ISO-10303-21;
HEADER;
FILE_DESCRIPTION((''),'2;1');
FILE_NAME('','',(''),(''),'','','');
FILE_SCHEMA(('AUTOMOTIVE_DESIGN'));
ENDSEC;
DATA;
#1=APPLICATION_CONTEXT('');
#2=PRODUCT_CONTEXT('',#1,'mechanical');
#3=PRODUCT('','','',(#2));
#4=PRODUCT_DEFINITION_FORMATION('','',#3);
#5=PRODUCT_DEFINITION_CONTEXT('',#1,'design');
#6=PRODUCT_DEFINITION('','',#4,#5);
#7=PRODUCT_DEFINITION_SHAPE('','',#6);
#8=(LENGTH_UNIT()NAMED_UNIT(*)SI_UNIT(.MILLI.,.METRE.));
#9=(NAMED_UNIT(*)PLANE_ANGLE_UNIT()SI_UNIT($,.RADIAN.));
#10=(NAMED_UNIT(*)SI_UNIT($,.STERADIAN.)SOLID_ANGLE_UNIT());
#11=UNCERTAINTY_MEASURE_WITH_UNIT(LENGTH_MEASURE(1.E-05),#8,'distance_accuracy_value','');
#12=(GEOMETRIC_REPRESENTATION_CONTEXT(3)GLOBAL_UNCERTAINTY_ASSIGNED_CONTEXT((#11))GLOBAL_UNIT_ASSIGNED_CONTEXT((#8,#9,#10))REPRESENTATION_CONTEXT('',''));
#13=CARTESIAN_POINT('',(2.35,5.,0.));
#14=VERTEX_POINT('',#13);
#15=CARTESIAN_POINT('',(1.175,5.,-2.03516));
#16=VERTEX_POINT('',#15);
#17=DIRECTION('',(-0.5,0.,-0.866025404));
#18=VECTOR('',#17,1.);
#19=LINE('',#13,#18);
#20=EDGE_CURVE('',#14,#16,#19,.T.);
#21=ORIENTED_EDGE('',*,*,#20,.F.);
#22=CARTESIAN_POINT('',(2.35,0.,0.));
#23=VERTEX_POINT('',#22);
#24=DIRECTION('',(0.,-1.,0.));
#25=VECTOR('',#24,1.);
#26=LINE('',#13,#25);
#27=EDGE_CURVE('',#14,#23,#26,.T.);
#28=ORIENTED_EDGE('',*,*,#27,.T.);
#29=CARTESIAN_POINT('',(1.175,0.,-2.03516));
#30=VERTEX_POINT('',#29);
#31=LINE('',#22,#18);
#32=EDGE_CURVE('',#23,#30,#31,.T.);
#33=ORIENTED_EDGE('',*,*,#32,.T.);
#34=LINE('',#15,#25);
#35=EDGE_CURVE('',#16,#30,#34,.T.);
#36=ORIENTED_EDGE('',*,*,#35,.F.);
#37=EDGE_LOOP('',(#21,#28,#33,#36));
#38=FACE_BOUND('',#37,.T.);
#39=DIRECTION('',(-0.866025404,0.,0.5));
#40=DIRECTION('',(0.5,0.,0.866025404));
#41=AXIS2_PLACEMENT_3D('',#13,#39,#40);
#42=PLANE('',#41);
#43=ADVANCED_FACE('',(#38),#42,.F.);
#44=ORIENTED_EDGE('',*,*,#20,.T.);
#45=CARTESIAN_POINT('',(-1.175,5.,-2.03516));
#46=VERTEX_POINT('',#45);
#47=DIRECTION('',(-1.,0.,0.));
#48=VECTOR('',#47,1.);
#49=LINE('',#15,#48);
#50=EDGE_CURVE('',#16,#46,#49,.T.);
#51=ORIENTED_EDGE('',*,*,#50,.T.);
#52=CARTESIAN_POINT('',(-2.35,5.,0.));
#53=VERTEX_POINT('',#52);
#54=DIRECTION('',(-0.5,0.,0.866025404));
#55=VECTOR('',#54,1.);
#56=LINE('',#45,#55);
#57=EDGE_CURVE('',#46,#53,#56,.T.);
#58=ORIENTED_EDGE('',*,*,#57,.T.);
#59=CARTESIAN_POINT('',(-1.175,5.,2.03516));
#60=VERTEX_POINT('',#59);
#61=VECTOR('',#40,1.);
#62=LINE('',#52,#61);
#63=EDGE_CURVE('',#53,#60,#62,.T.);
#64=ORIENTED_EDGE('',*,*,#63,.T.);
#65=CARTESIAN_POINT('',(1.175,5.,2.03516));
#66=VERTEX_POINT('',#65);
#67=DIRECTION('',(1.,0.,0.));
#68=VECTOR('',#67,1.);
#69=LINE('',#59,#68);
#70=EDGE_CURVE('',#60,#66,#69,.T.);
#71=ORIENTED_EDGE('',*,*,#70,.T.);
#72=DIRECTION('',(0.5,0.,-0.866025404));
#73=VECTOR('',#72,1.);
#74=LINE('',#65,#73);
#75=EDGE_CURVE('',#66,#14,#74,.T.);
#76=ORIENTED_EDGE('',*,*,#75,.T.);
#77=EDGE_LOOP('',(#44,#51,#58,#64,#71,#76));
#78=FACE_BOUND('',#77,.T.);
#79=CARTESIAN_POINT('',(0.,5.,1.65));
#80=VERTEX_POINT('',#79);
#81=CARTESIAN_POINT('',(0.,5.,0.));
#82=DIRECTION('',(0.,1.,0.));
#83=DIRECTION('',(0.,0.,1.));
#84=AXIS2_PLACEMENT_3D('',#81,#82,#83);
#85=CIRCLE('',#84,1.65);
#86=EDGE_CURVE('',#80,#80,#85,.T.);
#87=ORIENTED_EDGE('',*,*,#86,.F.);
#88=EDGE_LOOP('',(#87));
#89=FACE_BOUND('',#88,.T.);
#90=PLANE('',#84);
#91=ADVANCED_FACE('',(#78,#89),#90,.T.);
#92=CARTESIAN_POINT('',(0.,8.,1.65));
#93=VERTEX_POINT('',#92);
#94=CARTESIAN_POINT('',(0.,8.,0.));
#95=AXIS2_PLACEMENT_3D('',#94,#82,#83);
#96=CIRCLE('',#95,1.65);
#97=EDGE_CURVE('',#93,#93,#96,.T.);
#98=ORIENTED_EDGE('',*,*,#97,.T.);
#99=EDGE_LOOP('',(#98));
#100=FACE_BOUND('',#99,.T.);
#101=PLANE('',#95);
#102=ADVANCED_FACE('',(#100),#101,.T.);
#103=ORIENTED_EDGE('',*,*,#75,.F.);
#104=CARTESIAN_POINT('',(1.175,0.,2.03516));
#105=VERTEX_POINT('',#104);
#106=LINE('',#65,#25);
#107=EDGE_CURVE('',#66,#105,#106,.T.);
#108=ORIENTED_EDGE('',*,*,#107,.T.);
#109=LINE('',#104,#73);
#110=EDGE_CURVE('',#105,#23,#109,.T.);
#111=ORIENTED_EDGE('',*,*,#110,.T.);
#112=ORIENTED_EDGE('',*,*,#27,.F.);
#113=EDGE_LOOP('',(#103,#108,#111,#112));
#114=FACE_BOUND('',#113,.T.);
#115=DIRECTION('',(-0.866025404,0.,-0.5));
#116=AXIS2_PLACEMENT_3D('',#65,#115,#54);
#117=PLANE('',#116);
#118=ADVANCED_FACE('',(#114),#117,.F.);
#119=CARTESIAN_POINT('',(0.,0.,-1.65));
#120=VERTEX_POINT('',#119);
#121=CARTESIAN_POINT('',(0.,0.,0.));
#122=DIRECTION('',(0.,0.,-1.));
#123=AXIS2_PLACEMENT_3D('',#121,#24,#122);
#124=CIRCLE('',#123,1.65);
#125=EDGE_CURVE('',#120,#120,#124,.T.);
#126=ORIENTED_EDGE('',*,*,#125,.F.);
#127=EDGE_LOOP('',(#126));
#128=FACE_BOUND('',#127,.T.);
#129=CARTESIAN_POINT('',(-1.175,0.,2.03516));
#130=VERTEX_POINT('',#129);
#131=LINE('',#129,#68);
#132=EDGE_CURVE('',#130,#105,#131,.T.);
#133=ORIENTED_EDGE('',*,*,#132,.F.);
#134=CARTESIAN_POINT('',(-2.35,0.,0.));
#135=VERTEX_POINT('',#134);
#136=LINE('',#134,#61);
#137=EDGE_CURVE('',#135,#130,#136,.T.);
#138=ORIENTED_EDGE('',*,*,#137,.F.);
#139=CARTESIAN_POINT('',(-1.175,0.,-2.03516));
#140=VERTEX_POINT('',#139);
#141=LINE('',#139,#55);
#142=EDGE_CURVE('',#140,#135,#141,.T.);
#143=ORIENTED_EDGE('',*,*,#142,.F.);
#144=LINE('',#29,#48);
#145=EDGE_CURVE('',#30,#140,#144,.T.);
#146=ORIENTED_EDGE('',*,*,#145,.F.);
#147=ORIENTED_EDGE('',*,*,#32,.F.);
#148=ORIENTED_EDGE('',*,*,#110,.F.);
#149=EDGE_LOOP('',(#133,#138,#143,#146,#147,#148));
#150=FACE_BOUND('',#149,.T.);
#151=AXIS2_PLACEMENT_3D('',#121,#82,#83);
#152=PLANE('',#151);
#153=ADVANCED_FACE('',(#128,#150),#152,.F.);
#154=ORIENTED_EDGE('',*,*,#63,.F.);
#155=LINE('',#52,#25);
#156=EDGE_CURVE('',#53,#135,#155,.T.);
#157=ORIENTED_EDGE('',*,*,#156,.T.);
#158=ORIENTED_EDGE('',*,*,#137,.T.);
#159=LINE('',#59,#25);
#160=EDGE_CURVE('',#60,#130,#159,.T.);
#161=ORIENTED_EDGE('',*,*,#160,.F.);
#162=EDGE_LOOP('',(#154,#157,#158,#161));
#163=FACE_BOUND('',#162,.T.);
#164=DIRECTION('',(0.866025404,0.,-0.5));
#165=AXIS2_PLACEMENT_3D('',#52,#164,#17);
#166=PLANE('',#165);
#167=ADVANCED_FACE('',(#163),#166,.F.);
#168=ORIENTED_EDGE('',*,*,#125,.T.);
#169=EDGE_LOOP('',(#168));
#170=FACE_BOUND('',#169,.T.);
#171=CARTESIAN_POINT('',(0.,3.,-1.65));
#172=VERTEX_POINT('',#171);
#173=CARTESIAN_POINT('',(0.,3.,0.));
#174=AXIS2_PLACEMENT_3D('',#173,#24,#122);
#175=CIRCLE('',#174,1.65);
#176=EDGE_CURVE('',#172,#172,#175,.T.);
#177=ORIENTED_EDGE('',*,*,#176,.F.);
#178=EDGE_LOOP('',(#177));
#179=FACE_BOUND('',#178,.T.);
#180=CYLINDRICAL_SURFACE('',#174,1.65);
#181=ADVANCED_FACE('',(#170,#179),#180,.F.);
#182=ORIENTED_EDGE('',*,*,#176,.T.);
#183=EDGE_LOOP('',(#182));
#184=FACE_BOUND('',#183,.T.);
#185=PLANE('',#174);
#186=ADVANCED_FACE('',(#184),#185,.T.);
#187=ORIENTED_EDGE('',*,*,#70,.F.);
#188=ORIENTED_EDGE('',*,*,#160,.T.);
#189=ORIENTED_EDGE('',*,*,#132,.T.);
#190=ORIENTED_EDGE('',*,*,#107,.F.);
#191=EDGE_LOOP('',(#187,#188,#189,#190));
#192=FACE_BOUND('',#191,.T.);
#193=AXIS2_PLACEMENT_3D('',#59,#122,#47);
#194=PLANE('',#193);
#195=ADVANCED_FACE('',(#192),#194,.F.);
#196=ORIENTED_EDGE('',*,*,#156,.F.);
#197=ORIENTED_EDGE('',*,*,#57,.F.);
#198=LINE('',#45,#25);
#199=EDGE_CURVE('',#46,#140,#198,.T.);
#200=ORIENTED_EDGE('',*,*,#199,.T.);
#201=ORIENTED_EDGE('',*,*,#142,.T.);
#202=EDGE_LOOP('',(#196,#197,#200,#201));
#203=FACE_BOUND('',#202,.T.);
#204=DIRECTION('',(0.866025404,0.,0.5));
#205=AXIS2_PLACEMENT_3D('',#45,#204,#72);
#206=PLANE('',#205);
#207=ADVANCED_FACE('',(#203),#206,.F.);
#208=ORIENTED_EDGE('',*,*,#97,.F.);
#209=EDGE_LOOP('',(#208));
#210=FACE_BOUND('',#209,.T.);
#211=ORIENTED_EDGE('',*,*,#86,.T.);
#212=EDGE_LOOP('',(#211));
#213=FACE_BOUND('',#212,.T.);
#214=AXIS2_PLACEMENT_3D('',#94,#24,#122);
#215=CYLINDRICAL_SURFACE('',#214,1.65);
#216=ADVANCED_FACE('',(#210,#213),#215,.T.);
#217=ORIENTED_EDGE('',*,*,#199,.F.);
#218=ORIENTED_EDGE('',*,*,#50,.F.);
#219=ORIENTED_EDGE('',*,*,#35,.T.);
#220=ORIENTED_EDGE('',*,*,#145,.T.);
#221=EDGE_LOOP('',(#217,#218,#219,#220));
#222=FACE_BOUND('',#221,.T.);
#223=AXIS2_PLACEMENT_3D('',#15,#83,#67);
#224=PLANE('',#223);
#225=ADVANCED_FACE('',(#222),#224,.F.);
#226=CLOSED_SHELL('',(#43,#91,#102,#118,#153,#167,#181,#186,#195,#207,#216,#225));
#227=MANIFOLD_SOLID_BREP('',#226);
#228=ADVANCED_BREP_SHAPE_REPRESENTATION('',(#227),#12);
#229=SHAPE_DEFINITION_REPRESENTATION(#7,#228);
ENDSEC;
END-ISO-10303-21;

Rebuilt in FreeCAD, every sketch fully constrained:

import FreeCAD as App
import Part
import Sketcher

V = App.Vector
Q = App.Units.Quantity

doc = App.newDocument("Part")
body = doc.addObject("PartDesign::Body", "Body")

# Sketch on XZ plane
sketch1 = doc.addObject("Sketcher::SketchObject", "Sketch")
body.addObject(sketch1)
sketch1.AttachmentSupport = (doc.XZ_Plane, [""])
sketch1.MapMode = "FlatFace"
sketch1.addGeometry([
    Part.LineSegment(V(1.2, 2, 0), V(2.4, 0, 0)),  # 0
    Part.LineSegment(V(2.4, 0, 0), V(1.2, -2, 0)),  # 1
    Part.LineSegment(V(1.2, -2, 0), V(-1.2, -2, 0)),  # 2
    Part.LineSegment(V(-1.2, -2, 0), V(-2.4, 0, 0)),  # 3
    Part.LineSegment(V(-2.4, 0, 0), V(-1.2, 2, 0)),  # 4
    Part.LineSegment(V(-1.2, 2, 0), V(1.2, 2, 0)),  # 5
], False)
sketch1.addConstraint([
    Sketcher.Constraint("Coincident", 0, 2, 1, 1),
    Sketcher.Constraint("Coincident", 1, 2, 2, 1),
    Sketcher.Constraint("Coincident", 2, 2, 3, 1),
    Sketcher.Constraint("Coincident", 3, 2, 4, 1),
    Sketcher.Constraint("Coincident", 4, 2, 5, 1),
    Sketcher.Constraint("Coincident", 5, 2, 0, 1),
    Sketcher.Constraint("Horizontal", 2),
    Sketcher.Constraint("Horizontal", 5),
    Sketcher.Constraint("Symmetric", 0, 2, 3, 2, -1, 1),
    Sketcher.Constraint("Symmetric", 1, 2, 4, 2, -1, 1),
    Sketcher.Constraint("PointOnObject", 0, 2, -1),
    Sketcher.Constraint("Parallel", 0, 3),
    Sketcher.Constraint("Vertical", 2, 2, 4, 2),
    Sketcher.Constraint("Angle", 0, Q("-60 deg")),
    Sketcher.Constraint("DistanceX", 2, 2, 2, 1, Q("2.35 mm")),
    Sketcher.Constraint("DistanceX", 3, 2, 0, 2, Q("4.7 mm")),
])
pad1 = doc.addObject("PartDesign::Pad", "Pad")
body.addObject(pad1)
pad1.Profile = sketch1
pad1.Length = 5
pad1.Reversed = True

# Sketch on XZ plane
sketch2 = doc.addObject("Sketcher::SketchObject", "Sketch001")
body.addObject(sketch2)
sketch2.AttachmentSupport = (doc.XZ_Plane, [""])
sketch2.MapMode = "FlatFace"
sketch2.AttachmentOffset = App.Placement(V(0, 0, -5), App.Rotation())
sketch2.addGeometry(Part.Circle(V(0, 0, 0), V(0, 0, 1), 1.6), False)
sketch2.addConstraint([
    Sketcher.Constraint("Coincident", 0, 3, -1, 1),
    Sketcher.Constraint("Diameter", 0, Q("3.3 mm")),
])
pad2 = doc.addObject("PartDesign::Pad", "Pad001")
body.addObject(pad2)
pad2.Profile = sketch2
pad2.Length = 3
pad2.Reversed = True

# Sketch on XZ plane
sketch3 = doc.addObject("Sketcher::SketchObject", "Sketch002")
body.addObject(sketch3)
sketch3.AttachmentSupport = (doc.XZ_Plane, [""])
sketch3.MapMode = "FlatFace"
sketch3.addGeometry(Part.Circle(V(0, 0, 0), V(0, 0, 1), 1.6), False)
sketch3.addConstraint([
    Sketcher.Constraint("Coincident", 0, 3, -1, 1),
    Sketcher.Constraint("Diameter", 0, Q("3.3 mm")),
])
pocket1 = doc.addObject("PartDesign::Pocket", "Pocket")
body.addObject(pocket1)
pocket1.Profile = sketch3
pocket1.Length = 3

doc.recompute()
